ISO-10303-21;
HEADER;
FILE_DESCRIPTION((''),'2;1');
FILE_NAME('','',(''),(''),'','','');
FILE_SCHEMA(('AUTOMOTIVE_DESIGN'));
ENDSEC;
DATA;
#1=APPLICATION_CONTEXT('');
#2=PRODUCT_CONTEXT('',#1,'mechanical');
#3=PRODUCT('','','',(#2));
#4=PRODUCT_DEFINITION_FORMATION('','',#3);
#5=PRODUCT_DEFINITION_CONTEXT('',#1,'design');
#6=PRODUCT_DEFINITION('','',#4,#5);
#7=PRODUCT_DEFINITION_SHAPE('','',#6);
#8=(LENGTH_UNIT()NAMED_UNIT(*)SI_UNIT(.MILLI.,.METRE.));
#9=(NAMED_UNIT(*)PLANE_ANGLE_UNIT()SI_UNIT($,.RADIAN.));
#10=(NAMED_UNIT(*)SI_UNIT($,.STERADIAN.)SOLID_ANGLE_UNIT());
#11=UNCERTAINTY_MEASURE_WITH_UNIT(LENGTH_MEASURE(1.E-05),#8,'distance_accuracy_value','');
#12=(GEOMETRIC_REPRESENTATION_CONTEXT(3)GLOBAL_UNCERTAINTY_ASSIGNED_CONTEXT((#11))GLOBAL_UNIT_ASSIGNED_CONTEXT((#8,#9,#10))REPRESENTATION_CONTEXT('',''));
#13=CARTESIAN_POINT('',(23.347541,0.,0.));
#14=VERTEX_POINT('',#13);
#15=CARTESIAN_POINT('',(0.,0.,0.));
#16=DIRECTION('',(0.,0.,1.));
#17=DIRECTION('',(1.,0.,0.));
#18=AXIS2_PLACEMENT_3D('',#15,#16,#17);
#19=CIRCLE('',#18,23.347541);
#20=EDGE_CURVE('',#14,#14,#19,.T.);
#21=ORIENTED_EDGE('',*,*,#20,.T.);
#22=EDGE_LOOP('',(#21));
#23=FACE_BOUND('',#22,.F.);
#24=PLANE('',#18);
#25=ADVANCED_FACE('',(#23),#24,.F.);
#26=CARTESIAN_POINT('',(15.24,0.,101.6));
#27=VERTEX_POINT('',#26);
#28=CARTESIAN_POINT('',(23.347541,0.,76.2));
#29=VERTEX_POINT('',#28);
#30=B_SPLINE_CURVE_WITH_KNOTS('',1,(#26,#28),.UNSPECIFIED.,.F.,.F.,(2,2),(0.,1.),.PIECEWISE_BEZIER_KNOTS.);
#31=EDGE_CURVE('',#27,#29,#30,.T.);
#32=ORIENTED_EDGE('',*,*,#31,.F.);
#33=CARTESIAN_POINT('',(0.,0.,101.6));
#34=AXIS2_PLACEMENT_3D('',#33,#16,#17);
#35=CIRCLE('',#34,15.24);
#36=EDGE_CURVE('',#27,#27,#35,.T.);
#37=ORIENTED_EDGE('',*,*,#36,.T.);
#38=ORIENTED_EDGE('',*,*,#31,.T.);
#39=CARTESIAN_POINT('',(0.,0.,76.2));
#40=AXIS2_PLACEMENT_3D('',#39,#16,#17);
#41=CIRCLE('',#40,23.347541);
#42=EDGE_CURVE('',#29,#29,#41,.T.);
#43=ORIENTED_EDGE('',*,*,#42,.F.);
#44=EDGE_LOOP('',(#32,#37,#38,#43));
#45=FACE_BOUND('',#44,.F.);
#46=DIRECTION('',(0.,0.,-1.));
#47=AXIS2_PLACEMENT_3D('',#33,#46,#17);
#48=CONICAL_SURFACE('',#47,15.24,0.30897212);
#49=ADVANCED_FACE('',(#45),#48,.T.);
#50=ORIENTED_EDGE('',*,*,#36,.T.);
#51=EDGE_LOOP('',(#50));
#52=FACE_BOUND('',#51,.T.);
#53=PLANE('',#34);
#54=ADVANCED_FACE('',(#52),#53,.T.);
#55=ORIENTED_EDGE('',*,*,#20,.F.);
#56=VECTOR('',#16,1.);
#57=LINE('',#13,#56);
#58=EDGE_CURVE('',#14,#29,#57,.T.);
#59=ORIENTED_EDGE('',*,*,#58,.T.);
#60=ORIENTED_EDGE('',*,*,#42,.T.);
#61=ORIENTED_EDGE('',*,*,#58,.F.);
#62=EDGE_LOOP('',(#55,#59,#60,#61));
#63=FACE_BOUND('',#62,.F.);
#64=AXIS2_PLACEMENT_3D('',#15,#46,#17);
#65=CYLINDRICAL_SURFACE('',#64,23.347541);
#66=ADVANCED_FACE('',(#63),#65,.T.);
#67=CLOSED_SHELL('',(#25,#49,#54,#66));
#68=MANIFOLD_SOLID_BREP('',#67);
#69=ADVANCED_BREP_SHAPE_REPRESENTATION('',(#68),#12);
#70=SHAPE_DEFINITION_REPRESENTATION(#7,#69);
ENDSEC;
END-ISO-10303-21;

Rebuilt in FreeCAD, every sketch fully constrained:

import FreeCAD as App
import Part
import Sketcher

V = App.Vector
Q = App.Units.Quantity

doc = App.newDocument("Part")
body = doc.addObject("PartDesign::Body", "Body")

sketch1 = doc.addObject("Sketcher::SketchObject", "Sketch")
body.addObject(sketch1)
sketch1.AttachmentSupport = (doc.XY_Plane, [""])
sketch1.MapMode = "FlatFace"
sketch1.addGeometry(Part.Circle(V(0, 0, 0), V(0, 0, 1), 23), False)
sketch1.addConstraint([
    Sketcher.Constraint("Coincident", 0, 3, -1, 1),
    Sketcher.Constraint("Diameter", 0, Q("46.695082 mm")),
])
pad1 = doc.addObject("PartDesign::Pad", "Pad")
body.addObject(pad1)
pad1.Profile = sketch1
pad1.Length = Q("3 in")

sketch2 = doc.addObject("Sketcher::SketchObject", "Sketch001")
body.addObject(sketch2)
sketch2.AttachmentSupport = (doc.XY_Plane, [""])
sketch2.MapMode = "FlatFace"
sketch2.AttachmentOffset = App.Placement(V(0, 0, 4 * 25.4), App.Rotation())
sketch2.addGeometry(Part.Circle(V(0, 0, 0), V(0, 0, 1), 15), False)
sketch2.addConstraint([
    Sketcher.Constraint("Coincident", 0, 3, -1, 1),
    Sketcher.Constraint("Diameter", 0, Q("1.2 in")),
])

sketch3 = doc.addObject("Sketcher::SketchObject", "Sketch002")
body.addObject(sketch3)
sketch3.AttachmentSupport = (doc.XY_Plane, [""])
sketch3.MapMode = "FlatFace"
sketch3.AttachmentOffset = App.Placement(V(0, 0, 3 * 25.4), App.Rotation())
sketch3.addGeometry(Part.Circle(V(0, 0, 0), V(0, 0, 1), 23), False)
sketch3.addConstraint([
    Sketcher.Constraint("Coincident", 0, 3, -1, 1),
    Sketcher.Constraint("Diameter", 0, Q("46.695082 mm")),
])

additiveloft = doc.addObject("PartDesign::AdditiveLoft", "AdditiveLoft")
body.addObject(additiveloft)
additiveloft.Profile = sketch2
additiveloft.Sections = [sketch3]

doc.recompute()
